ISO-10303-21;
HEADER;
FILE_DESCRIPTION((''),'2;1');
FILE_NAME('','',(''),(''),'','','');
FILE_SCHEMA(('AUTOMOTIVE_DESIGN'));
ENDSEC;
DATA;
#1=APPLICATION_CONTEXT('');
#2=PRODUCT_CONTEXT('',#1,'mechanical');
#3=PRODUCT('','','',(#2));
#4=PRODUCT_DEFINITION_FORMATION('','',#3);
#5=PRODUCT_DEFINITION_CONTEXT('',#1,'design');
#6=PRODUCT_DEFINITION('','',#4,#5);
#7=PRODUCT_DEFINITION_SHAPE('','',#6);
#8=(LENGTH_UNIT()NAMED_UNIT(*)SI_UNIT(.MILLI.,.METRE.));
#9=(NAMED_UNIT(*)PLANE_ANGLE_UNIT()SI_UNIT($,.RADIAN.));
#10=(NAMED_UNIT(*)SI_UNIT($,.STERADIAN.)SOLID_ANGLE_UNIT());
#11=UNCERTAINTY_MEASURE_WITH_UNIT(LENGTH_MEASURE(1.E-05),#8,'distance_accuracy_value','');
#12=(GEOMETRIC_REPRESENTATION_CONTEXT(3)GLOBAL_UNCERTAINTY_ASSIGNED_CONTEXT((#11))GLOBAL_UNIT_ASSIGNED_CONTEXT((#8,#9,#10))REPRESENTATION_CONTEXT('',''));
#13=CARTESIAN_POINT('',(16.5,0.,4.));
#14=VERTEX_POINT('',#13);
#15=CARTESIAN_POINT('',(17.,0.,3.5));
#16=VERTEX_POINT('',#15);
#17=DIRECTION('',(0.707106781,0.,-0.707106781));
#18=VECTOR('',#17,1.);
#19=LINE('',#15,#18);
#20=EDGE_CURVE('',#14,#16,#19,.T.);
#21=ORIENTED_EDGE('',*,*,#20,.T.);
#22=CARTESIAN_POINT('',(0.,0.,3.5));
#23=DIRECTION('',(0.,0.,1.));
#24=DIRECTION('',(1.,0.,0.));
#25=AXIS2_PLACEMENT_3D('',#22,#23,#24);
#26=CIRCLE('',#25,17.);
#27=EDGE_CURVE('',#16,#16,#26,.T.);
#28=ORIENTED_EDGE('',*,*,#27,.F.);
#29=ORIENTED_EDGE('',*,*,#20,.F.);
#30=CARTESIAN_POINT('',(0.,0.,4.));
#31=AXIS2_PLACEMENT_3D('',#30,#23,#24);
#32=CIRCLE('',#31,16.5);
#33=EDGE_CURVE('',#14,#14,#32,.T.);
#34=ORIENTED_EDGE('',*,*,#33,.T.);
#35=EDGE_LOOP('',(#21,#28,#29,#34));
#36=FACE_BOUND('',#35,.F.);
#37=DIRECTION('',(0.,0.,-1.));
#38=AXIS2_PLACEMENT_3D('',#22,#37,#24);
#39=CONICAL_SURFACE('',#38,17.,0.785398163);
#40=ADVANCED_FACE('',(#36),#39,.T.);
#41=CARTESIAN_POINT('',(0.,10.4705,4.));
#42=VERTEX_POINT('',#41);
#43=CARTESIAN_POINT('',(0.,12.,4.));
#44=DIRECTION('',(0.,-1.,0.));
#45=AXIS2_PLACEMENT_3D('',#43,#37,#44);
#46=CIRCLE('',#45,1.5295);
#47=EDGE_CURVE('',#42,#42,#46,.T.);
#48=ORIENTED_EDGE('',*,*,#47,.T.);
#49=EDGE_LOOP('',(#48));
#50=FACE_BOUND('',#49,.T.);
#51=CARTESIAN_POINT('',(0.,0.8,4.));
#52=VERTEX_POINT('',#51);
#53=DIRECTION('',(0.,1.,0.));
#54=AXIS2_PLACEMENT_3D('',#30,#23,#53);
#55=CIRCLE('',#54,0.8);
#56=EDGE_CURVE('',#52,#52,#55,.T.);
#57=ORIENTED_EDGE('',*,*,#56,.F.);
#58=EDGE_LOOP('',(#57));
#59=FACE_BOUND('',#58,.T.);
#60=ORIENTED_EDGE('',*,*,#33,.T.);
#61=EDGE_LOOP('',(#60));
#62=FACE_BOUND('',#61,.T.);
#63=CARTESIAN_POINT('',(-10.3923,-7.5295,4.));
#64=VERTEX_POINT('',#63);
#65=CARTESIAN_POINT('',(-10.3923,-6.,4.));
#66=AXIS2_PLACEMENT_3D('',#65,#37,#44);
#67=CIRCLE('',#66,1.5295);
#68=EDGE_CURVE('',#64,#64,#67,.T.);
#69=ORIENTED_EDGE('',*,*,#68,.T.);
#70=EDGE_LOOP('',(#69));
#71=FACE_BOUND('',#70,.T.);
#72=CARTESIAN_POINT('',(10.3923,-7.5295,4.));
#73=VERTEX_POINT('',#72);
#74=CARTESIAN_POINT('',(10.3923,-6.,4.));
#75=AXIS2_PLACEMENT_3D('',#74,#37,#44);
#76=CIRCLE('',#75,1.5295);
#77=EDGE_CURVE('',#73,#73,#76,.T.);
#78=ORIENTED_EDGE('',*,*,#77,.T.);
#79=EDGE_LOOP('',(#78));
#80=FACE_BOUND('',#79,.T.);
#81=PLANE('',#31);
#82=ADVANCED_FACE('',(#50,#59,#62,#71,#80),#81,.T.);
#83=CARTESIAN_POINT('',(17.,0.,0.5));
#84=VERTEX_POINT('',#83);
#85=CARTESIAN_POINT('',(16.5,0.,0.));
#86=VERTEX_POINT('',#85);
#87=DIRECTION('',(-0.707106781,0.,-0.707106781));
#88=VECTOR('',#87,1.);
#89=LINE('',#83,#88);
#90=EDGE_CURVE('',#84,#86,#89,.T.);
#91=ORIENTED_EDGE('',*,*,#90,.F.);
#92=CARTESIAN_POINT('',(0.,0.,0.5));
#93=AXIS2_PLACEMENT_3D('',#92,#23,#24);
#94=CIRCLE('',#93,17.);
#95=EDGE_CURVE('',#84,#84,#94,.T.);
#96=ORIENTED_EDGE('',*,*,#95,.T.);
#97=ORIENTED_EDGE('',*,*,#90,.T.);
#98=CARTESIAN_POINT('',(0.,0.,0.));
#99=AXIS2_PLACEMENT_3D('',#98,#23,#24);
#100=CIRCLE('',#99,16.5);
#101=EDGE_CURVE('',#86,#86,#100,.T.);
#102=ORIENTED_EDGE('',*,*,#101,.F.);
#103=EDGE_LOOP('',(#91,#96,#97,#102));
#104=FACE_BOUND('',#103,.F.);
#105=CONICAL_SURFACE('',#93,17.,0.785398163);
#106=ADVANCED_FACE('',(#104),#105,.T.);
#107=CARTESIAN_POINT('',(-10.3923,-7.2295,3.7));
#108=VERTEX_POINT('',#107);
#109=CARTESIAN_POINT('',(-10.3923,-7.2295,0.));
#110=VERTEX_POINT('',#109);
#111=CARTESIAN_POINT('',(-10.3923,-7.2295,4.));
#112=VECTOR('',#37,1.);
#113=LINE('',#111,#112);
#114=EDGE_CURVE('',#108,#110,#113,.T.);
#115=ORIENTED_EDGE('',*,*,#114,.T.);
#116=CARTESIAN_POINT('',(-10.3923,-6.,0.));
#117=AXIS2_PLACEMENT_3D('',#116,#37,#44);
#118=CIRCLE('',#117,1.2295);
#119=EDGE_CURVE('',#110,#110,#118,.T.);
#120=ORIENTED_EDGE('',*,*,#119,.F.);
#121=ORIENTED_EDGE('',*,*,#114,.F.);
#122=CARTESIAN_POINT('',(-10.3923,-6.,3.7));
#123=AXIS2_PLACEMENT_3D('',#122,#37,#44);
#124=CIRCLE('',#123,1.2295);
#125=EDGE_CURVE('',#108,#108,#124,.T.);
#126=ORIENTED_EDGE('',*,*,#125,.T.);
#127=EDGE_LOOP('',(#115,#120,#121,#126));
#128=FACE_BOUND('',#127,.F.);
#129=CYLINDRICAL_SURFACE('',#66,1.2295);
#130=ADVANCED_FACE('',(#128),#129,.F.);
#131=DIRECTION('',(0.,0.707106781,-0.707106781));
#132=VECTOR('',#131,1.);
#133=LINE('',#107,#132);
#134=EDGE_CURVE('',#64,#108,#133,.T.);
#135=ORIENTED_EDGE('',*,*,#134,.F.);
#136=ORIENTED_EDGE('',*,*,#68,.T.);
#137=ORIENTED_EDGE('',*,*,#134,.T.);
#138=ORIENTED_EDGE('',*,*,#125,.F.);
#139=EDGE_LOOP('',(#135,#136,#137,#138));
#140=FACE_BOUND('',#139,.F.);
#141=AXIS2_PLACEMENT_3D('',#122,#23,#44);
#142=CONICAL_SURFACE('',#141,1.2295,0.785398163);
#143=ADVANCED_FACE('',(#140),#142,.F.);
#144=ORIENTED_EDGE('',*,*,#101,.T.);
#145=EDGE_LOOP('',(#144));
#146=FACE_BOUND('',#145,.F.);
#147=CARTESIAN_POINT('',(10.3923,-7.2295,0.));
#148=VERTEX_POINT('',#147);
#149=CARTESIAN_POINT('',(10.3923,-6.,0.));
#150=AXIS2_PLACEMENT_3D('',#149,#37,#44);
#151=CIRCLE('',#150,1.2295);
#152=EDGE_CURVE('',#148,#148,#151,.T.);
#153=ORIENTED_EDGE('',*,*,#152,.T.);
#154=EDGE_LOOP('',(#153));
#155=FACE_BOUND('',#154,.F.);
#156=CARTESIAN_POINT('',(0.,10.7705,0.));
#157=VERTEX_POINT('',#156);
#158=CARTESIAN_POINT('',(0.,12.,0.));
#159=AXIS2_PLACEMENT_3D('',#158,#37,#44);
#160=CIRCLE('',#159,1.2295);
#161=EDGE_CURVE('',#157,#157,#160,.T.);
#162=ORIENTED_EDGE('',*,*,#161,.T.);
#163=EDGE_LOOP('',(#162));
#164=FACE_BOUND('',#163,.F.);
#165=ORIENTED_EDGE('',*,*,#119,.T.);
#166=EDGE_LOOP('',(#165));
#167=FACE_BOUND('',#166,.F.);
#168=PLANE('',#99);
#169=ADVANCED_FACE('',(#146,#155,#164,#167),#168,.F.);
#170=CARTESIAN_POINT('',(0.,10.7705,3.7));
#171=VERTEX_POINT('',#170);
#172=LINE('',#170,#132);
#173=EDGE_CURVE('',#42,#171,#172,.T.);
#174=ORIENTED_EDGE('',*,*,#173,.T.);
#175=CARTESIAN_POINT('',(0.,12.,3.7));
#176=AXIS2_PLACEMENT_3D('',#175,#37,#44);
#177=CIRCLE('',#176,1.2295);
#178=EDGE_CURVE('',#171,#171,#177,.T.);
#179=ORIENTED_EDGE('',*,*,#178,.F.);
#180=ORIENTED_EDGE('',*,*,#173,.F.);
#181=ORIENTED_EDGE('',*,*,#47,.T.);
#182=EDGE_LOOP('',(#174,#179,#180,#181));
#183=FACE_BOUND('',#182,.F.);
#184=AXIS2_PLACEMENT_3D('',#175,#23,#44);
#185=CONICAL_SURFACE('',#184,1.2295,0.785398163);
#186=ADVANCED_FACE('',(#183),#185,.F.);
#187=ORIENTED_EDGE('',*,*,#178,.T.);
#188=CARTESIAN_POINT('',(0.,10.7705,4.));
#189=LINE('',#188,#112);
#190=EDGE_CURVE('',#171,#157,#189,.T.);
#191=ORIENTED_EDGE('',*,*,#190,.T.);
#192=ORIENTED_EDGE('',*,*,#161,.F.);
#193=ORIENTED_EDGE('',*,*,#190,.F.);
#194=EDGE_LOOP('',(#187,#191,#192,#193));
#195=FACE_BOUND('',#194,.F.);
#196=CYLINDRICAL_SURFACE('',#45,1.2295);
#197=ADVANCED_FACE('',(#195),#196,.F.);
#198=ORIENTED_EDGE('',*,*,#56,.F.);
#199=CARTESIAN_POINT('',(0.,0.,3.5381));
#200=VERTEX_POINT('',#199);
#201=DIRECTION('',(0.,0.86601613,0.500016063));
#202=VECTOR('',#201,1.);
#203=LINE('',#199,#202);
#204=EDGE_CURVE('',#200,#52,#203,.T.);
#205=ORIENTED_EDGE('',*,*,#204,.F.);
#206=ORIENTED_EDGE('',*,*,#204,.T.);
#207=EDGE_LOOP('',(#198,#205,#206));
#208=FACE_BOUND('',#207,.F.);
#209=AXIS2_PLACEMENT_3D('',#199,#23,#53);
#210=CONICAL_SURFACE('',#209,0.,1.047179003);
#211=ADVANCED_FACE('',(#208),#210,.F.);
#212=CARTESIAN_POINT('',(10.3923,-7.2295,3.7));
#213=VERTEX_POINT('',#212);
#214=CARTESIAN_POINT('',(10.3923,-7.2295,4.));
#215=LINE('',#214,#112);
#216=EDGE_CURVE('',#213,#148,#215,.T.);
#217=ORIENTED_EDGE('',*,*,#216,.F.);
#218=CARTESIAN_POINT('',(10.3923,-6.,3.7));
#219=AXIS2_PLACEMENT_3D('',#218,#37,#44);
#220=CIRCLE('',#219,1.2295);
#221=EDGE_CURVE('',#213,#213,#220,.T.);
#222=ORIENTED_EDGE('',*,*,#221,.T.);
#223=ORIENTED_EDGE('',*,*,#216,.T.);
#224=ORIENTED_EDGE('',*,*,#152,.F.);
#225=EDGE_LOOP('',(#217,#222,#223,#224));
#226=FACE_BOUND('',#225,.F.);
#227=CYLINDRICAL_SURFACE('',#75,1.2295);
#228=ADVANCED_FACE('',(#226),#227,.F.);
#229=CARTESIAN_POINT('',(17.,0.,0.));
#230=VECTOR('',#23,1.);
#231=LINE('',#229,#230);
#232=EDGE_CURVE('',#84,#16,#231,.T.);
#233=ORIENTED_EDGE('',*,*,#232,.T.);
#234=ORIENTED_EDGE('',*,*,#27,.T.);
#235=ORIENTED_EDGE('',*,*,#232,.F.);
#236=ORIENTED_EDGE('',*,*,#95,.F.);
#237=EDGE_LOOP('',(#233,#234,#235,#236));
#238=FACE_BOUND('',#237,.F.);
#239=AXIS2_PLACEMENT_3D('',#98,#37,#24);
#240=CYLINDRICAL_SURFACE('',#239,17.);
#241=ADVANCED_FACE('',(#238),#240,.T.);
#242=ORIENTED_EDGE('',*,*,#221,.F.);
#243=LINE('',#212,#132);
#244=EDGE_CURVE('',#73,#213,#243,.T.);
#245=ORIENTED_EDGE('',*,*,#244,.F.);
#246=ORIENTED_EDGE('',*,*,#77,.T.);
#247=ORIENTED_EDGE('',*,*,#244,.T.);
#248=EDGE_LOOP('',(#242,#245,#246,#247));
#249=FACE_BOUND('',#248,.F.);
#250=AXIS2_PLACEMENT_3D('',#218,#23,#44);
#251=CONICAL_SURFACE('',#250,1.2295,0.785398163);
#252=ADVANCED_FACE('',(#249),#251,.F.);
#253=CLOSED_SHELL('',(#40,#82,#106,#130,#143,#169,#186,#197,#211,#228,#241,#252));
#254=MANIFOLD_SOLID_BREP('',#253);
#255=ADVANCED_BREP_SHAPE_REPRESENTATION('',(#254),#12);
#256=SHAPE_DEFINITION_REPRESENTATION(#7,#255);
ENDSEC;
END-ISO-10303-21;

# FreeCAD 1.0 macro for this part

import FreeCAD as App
import Part
import Sketcher

V = App.Vector
Q = App.Units.Quantity


def edges_at(feature, points):
    """Names of the edges that pass closest to the given points."""
    edges = feature.Shape.Edges
    near = lambda p: min(range(len(edges)), key=lambda i: edges[i].distToShape(Part.Vertex(*p))[0])
    return sorted({f"Edge{near(p) + 1}" for p in points})

doc = App.newDocument("Part")
body = doc.addObject("PartDesign::Body", "Body")

# Sketch on XY plane
sketch1 = body.newObject("Sketcher::SketchObject", "Sketch")
sketch1.AttachmentSupport = (doc.getObject("XY_Plane"), [""])
sketch1.MapMode = "FlatFace"
sketch1.addGeometry(Part.Circle(V(0, 0, 0), V(0, 0, 1), 17), False)
sketch1.addConstraint([
    Sketcher.Constraint("Coincident", 0, 3, -1, 1),
    Sketcher.Constraint("Diameter", 0, Q("34 mm")),
])
pad1 = body.newObject("PartDesign::Pad", "Pad")
pad1.Profile = sketch1
pad1.Length = 4

# Sketch on YZ plane
sketch2 = body.newObject("Sketcher::SketchObject", "Sketch001")
sketch2.AttachmentSupport = (doc.getObject("YZ_Plane"), [""])
sketch2.MapMode = "FlatFace"
sketch2.addGeometry([
    Part.LineSegment(V(0, 3.5381, 0), V(0.8, 4, 0)),
    Part.LineSegment(V(0.8, 4, 0), V(0, 4, 0)),
    Part.LineSegment(V(0, 4, 0), V(0, 3.5381, 0)),
], False)
sketch2.addConstraint([
    Sketcher.Constraint("Coincident", 0, 2, 1, 1),
    Sketcher.Constraint("Coincident", 1, 2, 2, 1),
    Sketcher.Constraint("Coincident", 2, 2, 0, 1),
    Sketcher.Constraint("Horizontal", 1),
    Sketcher.Constraint("Vertical", 2),
    Sketcher.Constraint("PointOnObject", 1, 2, -2),
    Sketcher.Constraint("DistanceX", 1, 2, 1, 1, Q("0.8 mm")),
    Sketcher.Constraint("Angle", 0, Q("30.001 deg")),
    Sketcher.Constraint("DistanceY", -1, 1, 0, 2, Q("4 mm")),
])
groove = body.newObject("PartDesign::Groove", "Groove")
groove.Profile = sketch2
groove.ReferenceAxis = (sketch2, ["V_Axis"])
groove.Angle = 360

# Sketch on XY plane
sketch3 = body.newObject("Sketcher::SketchObject", "Sketch002")
sketch3.AttachmentSupport = (doc.getObject("XY_Plane"), [""])
sketch3.MapMode = "FlatFace"
sketch3.AttachmentOffset = App.Placement(V(0, 0, 4), App.Rotation())
sketch3.addGeometry([
    Part.Circle(V(0, 12, 0), V(0, 0, 1), 1.2295),
    Part.Circle(V(-10.3923, -6, 0), V(0, 0, 1), 1.2295),
    Part.Circle(V(10.3923, -6, 0), V(0, 0, 1), 1.2295),
], False)
sketch3.addConstraint([
    Sketcher.Constraint("Equal", 0, 1),
    Sketcher.Constraint("Equal", 1, 2),
    Sketcher.Constraint("Symmetric", 1, 3, 2, 3, -2),
    Sketcher.Constraint("PointOnObject", 0, 3, -2),
    Sketcher.Constraint("Diameter", 0, Q("2.459 mm")),
    Sketcher.Constraint("DistanceY", -1, 1, 0, 3, Q("12 mm")),
    Sketcher.Constraint("DistanceY", 1, 3, -1, 1, Q("6 mm")),
    Sketcher.Constraint("DistanceX", 1, 3, -1, 1, Q("10.3923 mm")),
])
doc.recompute()
hole = body.newObject("PartDesign::Hole", "Hole")
hole.Profile = sketch3
hole.ThreadType = "None"
hole.Diameter = 2.459
hole.DepthType = "ThroughAll"
doc.recompute()

chamfer = body.newObject("PartDesign::Chamfer", "Chamfer")
chamfer.Base = (hole, edges_at(hole, [(-10.392, -4.771, 4), (10.392, -4.771, 4), (0, 13.229, 4)]))
chamfer.Size = 0.3
doc.recompute()

chamfer2 = body.newObject("PartDesign::Chamfer", "Chamfer001")
chamfer2.Base = (chamfer, edges_at(chamfer, [(-17, 0, 4), (-17, 0, 0)]))
chamfer2.Size = 0.5

doc.recompute()
